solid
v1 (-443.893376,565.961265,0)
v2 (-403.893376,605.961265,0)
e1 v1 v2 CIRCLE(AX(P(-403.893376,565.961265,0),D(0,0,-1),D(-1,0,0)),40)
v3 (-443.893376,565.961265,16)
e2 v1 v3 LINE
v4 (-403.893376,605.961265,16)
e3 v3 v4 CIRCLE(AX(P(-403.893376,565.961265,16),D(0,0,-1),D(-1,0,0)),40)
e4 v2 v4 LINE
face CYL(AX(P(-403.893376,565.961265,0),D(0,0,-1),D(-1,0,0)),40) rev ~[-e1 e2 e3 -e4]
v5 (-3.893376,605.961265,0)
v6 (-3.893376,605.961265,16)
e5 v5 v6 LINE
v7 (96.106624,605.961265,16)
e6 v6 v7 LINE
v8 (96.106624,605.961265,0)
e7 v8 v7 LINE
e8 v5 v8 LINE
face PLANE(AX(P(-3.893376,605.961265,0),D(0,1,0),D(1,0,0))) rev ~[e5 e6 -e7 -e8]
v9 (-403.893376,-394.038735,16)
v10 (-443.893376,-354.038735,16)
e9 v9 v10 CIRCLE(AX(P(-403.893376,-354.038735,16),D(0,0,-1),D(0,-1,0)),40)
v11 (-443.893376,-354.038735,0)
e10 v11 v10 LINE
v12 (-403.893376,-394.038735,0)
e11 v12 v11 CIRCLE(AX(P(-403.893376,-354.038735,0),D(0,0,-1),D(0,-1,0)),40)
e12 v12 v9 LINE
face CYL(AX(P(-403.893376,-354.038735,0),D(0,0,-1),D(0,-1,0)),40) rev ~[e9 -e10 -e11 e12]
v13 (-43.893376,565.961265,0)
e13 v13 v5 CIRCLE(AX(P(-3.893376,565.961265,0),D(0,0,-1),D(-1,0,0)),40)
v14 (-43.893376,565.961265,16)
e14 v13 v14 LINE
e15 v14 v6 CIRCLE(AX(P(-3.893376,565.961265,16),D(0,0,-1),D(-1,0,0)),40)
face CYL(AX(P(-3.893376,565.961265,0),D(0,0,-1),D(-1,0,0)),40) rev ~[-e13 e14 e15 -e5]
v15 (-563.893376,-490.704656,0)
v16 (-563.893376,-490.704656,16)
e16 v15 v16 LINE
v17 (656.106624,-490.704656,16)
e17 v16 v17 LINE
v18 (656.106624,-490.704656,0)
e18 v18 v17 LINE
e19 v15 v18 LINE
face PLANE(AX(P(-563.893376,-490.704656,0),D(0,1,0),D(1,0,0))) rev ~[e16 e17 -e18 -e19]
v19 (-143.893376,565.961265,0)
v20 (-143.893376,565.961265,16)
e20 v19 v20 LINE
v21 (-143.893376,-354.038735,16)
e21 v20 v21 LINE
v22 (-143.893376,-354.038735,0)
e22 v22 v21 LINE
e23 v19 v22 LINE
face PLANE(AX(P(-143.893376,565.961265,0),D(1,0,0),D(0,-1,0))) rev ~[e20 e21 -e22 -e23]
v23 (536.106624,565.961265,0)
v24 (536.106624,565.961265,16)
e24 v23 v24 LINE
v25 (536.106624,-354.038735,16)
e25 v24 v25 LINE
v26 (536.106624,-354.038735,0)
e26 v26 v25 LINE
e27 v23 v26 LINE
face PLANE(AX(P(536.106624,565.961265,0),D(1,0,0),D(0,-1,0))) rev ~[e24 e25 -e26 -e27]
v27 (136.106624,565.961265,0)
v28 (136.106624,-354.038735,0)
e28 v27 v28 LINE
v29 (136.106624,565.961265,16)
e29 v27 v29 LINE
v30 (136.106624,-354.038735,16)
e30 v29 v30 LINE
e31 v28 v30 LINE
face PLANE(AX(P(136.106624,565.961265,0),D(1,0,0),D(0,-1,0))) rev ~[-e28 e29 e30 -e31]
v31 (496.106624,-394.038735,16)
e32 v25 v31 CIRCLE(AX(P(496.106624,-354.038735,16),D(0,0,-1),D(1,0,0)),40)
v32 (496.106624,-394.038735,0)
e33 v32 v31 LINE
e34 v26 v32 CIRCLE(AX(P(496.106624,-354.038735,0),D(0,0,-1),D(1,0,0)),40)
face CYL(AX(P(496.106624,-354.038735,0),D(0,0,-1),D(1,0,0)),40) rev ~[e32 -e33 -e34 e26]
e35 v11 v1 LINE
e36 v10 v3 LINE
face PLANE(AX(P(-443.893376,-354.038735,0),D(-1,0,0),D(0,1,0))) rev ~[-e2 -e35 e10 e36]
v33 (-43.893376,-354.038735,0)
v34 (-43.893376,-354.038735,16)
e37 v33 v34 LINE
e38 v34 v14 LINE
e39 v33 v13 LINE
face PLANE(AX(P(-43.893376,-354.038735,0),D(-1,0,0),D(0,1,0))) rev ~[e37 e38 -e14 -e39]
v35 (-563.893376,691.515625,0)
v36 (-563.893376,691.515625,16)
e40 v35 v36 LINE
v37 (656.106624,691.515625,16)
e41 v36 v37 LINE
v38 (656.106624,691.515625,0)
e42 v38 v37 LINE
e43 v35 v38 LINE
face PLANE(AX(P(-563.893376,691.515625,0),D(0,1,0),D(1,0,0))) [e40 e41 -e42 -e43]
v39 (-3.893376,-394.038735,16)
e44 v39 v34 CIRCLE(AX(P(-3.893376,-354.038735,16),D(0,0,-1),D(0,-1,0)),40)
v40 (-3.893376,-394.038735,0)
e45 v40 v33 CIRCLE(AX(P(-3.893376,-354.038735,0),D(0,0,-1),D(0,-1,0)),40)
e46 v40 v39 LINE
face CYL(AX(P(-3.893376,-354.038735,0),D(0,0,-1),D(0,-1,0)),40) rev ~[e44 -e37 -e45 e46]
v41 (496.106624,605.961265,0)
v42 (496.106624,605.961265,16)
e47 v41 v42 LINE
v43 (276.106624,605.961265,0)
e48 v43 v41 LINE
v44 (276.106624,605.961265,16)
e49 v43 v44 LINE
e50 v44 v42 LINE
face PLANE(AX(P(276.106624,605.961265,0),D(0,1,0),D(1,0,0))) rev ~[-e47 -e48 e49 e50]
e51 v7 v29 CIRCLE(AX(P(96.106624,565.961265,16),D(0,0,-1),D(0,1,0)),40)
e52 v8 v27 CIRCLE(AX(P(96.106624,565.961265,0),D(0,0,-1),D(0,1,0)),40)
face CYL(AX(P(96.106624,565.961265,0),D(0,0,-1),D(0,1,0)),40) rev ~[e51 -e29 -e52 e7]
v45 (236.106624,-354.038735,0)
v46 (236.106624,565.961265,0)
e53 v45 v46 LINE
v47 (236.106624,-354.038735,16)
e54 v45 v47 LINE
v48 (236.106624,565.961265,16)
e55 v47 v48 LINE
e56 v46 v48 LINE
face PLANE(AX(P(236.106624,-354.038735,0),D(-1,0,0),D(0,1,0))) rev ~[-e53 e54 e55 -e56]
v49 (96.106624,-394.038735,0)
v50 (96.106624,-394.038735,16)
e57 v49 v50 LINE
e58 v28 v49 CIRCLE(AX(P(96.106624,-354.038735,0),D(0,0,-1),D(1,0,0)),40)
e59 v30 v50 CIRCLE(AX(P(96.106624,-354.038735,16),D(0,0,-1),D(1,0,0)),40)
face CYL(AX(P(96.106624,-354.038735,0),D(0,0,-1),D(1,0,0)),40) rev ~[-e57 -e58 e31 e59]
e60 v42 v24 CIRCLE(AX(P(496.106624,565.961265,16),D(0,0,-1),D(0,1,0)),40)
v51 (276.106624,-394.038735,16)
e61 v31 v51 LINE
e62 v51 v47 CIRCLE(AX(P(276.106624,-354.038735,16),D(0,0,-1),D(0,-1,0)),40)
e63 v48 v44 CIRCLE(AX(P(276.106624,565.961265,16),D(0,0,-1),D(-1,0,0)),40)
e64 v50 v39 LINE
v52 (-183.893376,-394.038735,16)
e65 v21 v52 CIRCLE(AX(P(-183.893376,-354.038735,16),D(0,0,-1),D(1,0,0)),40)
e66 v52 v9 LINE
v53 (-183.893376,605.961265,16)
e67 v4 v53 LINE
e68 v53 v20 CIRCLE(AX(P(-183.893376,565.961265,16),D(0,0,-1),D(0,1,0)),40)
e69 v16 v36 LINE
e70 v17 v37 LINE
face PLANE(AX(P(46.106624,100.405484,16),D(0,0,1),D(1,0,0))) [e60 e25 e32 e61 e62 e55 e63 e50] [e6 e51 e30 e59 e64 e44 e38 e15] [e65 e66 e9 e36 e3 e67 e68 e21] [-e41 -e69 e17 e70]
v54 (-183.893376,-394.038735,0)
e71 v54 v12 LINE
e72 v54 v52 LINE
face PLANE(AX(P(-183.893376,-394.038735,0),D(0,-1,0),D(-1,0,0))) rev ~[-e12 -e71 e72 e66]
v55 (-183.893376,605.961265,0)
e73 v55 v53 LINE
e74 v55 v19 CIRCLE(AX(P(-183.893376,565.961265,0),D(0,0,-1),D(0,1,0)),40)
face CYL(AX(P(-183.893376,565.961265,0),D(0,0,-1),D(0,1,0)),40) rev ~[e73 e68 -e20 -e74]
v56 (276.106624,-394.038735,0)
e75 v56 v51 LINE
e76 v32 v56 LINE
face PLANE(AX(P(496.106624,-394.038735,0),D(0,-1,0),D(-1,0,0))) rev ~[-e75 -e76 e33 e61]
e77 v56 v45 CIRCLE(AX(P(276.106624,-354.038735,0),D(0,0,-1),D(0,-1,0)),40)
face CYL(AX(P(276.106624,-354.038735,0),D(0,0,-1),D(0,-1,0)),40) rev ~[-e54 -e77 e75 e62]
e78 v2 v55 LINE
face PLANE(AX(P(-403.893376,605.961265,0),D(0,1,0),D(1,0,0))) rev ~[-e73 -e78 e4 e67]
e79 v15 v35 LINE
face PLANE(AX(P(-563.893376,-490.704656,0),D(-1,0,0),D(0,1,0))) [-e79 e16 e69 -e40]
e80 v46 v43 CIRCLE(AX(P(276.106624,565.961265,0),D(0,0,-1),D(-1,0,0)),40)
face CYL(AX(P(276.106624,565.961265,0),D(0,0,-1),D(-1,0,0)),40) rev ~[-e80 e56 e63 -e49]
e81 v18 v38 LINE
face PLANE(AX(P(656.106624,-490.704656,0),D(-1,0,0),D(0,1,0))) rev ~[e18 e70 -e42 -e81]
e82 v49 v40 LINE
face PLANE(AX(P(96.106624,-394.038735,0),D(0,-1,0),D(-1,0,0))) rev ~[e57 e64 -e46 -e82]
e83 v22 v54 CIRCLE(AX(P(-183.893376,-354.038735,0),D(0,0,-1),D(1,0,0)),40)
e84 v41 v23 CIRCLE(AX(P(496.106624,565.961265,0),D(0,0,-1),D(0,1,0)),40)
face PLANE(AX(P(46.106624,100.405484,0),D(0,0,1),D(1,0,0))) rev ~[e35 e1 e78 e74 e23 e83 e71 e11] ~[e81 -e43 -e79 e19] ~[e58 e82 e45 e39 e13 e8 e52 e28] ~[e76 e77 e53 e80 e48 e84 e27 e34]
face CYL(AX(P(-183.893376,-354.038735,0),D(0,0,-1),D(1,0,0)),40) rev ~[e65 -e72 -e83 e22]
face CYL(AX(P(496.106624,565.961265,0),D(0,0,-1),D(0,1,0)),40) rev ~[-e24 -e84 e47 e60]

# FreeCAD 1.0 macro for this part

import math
import FreeCAD as App
import Part
import Sketcher


def add_polygon(sketch, points):
    """Adds a closed chain of lines whose ends are joined by coincident constraints."""
    first, n = sketch.GeometryCount, len(points)
    for a, b in zip(points, points[1:] + points[:1]):
        sketch.addGeometry(Part.LineSegment(App.Vector(*a, 0), App.Vector(*b, 0)), False)
    for i in range(n):
        sketch.addConstraint(Sketcher.Constraint("Coincident", first + i, 2, first + (i + 1) % n, 1))

doc = App.newDocument("Part")
body = doc.addObject("PartDesign::Body", "Body")

sketch1 = body.newObject("Sketcher::SketchObject", "Sketch")
sketch1.AttachmentSupport = (doc.getObject("XY_Plane"), [""])
sketch1.MapMode = "FlatFace"
add_polygon(sketch1, [(-563.893376, 691.515625), (-563.893376, -490.704656), (656.106624, -490.704656), (656.106624, 691.515625)])
sketch1.addGeometry(Part.ArcOfCircle(Part.Circle(App.Vector(-403.893376, -354.038735, 0), App.Vector(0, 0, 1), 40), math.radians(180), math.radians(270)), False)
sketch1.addGeometry(Part.LineSegment(App.Vector(-443.893376, -354.038735, 0), App.Vector(-443.893376, 565.961265, 0)), False)
sketch1.addGeometry(Part.ArcOfCircle(Part.Circle(App.Vector(-403.893376, 565.961265, 0), App.Vector(0, 0, 1), 40), math.radians(90), math.radians(180)), False)
sketch1.addGeometry(Part.LineSegment(App.Vector(-403.893376, 605.961265, 0), App.Vector(-183.893376, 605.961265, 0)), False)
sketch1.addGeometry(Part.ArcOfCircle(Part.Circle(App.Vector(-183.893376, 565.961265, 0), App.Vector(0, 0, 1), 40), math.radians(0), math.radians(90)), False)
sketch1.addGeometry(Part.LineSegment(App.Vector(-143.893376, 565.961265, 0), App.Vector(-143.893376, -354.038735, 0)), False)
sketch1.addGeometry(Part.ArcOfCircle(Part.Circle(App.Vector(-183.893376, -354.038735, 0), App.Vector(0, 0, 1), 40), math.radians(-90), math.radians(0)), False)
sketch1.addGeometry(Part.LineSegment(App.Vector(-183.893376, -394.038735, 0), App.Vector(-403.893376, -394.038735, 0)), False)
sketch1.addGeometry(Part.ArcOfCircle(Part.Circle(App.Vector(-3.893376, -354.038735, 0), App.Vector(0, 0, 1), 40), math.radians(180), math.radians(270)), False)
sketch1.addGeometry(Part.LineSegment(App.Vector(-43.893376, -354.038735, 0), App.Vector(-43.893376, 565.961265, 0)), False)
sketch1.addGeometry(Part.ArcOfCircle(Part.Circle(App.Vector(-3.893376, 565.961265, 0), App.Vector(0, 0, 1), 40), math.radians(90), math.radians(180)), False)
sketch1.addGeometry(Part.LineSegment(App.Vector(-3.893376, 605.961265, 0), App.Vector(96.106624, 605.961265, 0)), False)
sketch1.addGeometry(Part.ArcOfCircle(Part.Circle(App.Vector(96.106624, 565.961265, 0), App.Vector(0, 0, 1), 40), math.radians(0), math.radians(90)), False)
sketch1.addGeometry(Part.LineSegment(App.Vector(136.106624, 565.961265, 0), App.Vector(136.106624, -354.038735, 0)), False)
sketch1.addGeometry(Part.ArcOfCircle(Part.Circle(App.Vector(96.106624, -354.038735, 0), App.Vector(0, 0, 1), 40), math.radians(-90), math.radians(0)), False)
sketch1.addGeometry(Part.LineSegment(App.Vector(96.106624, -394.038735, 0), App.Vector(-3.893376, -394.038735, 0)), False)
sketch1.addGeometry(Part.LineSegment(App.Vector(536.106624, 565.961265, 0), App.Vector(536.106624, -354.038735, 0)), False)
sketch1.addGeometry(Part.ArcOfCircle(Part.Circle(App.Vector(496.106624, -354.038735, 0), App.Vector(0, 0, 1), 40), math.radians(-90), math.radians(0)), False)
sketch1.addGeometry(Part.LineSegment(App.Vector(496.106624, -394.038735, 0), App.Vector(276.106624, -394.038735, 0)), False)
sketch1.addGeometry(Part.ArcOfCircle(Part.Circle(App.Vector(276.106624, -354.038735, 0), App.Vector(0, 0, 1), 40), math.radians(180), math.radians(270)), False)
sketch1.addGeometry(Part.LineSegment(App.Vector(236.106624, -354.038735, 0), App.Vector(236.106624, 565.961265, 0)), False)
sketch1.addGeometry(Part.ArcOfCircle(Part.Circle(App.Vector(276.106624, 565.961265, 0), App.Vector(0, 0, 1), 40), math.radians(90), math.radians(180)), False)
sketch1.addGeometry(Part.LineSegment(App.Vector(276.106624, 605.961265, 0), App.Vector(496.106624, 605.961265, 0)), False)
sketch1.addGeometry(Part.ArcOfCircle(Part.Circle(App.Vector(496.106624, 565.961265, 0), App.Vector(0, 0, 1), 40), math.radians(0), math.radians(90)), False)
sketch1.addConstraint([
    Sketcher.Constraint("Tangent", 4, 1, 5, 1),
    Sketcher.Constraint("Tangent", 5, 2, 6, 2),
    Sketcher.Constraint("Tangent", 6, 1, 7, 1),
    Sketcher.Constraint("Tangent", 7, 2, 8, 2),
    Sketcher.Constraint("Tangent", 8, 1, 9, 1),
    Sketcher.Constraint("Tangent", 9, 2, 10, 2),
    Sketcher.Constraint("Tangent", 10, 1, 11, 1),
    Sketcher.Constraint("Tangent", 11, 2, 4, 2),
    Sketcher.Constraint("Tangent", 12, 1, 13, 1),
    Sketcher.Constraint("Tangent", 13, 2, 14, 2),
    Sketcher.Constraint("Tangent", 14, 1, 15, 1),
    Sketcher.Constraint("Tangent", 15, 2, 16, 2),
    Sketcher.Constraint("Tangent", 16, 1, 17, 1),
    Sketcher.Constraint("Tangent", 17, 2, 18, 2),
    Sketcher.Constraint("Tangent", 18, 1, 19, 1),
    Sketcher.Constraint("Tangent", 19, 2, 12, 2),
    Sketcher.Constraint("Tangent", 20, 2, 21, 2),
    Sketcher.Constraint("Tangent", 21, 1, 22, 1),
    Sketcher.Constraint("Tangent", 22, 2, 23, 2),
    Sketcher.Constraint("Tangent", 23, 1, 24, 1),
    Sketcher.Constraint("Tangent", 24, 2, 25, 2),
    Sketcher.Constraint("Tangent", 25, 1, 26, 1),
    Sketcher.Constraint("Tangent", 26, 2, 27, 2),
    Sketcher.Constraint("Tangent", 27, 1, 20, 1),
    Sketcher.Constraint("Vertical", 0),
    Sketcher.Constraint("Horizontal", 1),
    Sketcher.Constraint("Vertical", 2),
    Sketcher.Constraint("Horizontal", 3),
    Sketcher.Constraint("Vertical", 5),
    Sketcher.Constraint("Horizontal", 7),
    Sketcher.Constraint("Vertical", 9),
    Sketcher.Constraint("Horizontal", 11),
    Sketcher.Constraint("Vertical", 13),
    Sketcher.Constraint("Horizontal", 15),
    Sketcher.Constraint("Vertical", 17),
    Sketcher.Constraint("Horizontal", 19),
    Sketcher.Constraint("Vertical", 20),
    Sketcher.Constraint("Horizontal", 22),
    Sketcher.Constraint("Vertical", 24),
    Sketcher.Constraint("Horizontal", 26),
    Sketcher.Constraint("Equal", 4, 6),
    Sketcher.Constraint("Equal", 6, 8),
    Sketcher.Constraint("Equal", 8, 10),
    Sketcher.Constraint("Equal", 10, 12),
    Sketcher.Constraint("Equal", 12, 14),
    Sketcher.Constraint("Equal", 14, 16),
    Sketcher.Constraint("Equal", 16, 18),
    Sketcher.Constraint("Equal", 18, 21),
    Sketcher.Constraint("Equal", 21, 23),
    Sketcher.Constraint("Equal", 23, 25),
    Sketcher.Constraint("Equal", 25, 27),
    Sketcher.Constraint("Horizontal", 10, 3, 12, 3),
    Sketcher.Constraint("Horizontal", 8, 3, 14, 3),
    Sketcher.Constraint("Horizontal", 18, 3, 21, 3),
    Sketcher.Constraint("Horizontal", 16, 3, 25, 3),
    Sketcher.Constraint("Equal", 11, 22),
    Sketcher.Constraint("Radius", 4, 40.0),
    Sketcher.Constraint("DistanceX", 1, 1, 1, 2, 1220.0),
    Sketcher.Constraint("DistanceX", 7, 1, 7, 2, 220.0),
    Sketcher.Constraint("DistanceX", 15, 1, 15, 2, 100.0),
    Sketcher.Constraint("DistanceY", 5, 1, 5, 2, 920.0),
    Sketcher.Constraint("DistanceX", 10, 3, 12, 3, 180.0),
    Sketcher.Constraint("DistanceX", 18, 3, 21, 3, 400.0),
    Sketcher.Constraint("DistanceX", 0, 2, 4, 3, 160.0),
    Sketcher.Constraint("DistanceY", 0, 2, 0, 1, 1182.22028),
    Sketcher.Constraint("DistanceY", 0, 2, 4, 3, 136.665921),
    Sketcher.Constraint("DistanceX", 4, 3, -1, 1, 403.893376),
    Sketcher.Constraint("DistanceY", 4, 3, -1, 1, 354.038735),
])
pad1 = body.newObject("PartDesign::Pad", "Pad")
pad1.Profile = sketch1
pad1.Length = 16

doc.recompute()
